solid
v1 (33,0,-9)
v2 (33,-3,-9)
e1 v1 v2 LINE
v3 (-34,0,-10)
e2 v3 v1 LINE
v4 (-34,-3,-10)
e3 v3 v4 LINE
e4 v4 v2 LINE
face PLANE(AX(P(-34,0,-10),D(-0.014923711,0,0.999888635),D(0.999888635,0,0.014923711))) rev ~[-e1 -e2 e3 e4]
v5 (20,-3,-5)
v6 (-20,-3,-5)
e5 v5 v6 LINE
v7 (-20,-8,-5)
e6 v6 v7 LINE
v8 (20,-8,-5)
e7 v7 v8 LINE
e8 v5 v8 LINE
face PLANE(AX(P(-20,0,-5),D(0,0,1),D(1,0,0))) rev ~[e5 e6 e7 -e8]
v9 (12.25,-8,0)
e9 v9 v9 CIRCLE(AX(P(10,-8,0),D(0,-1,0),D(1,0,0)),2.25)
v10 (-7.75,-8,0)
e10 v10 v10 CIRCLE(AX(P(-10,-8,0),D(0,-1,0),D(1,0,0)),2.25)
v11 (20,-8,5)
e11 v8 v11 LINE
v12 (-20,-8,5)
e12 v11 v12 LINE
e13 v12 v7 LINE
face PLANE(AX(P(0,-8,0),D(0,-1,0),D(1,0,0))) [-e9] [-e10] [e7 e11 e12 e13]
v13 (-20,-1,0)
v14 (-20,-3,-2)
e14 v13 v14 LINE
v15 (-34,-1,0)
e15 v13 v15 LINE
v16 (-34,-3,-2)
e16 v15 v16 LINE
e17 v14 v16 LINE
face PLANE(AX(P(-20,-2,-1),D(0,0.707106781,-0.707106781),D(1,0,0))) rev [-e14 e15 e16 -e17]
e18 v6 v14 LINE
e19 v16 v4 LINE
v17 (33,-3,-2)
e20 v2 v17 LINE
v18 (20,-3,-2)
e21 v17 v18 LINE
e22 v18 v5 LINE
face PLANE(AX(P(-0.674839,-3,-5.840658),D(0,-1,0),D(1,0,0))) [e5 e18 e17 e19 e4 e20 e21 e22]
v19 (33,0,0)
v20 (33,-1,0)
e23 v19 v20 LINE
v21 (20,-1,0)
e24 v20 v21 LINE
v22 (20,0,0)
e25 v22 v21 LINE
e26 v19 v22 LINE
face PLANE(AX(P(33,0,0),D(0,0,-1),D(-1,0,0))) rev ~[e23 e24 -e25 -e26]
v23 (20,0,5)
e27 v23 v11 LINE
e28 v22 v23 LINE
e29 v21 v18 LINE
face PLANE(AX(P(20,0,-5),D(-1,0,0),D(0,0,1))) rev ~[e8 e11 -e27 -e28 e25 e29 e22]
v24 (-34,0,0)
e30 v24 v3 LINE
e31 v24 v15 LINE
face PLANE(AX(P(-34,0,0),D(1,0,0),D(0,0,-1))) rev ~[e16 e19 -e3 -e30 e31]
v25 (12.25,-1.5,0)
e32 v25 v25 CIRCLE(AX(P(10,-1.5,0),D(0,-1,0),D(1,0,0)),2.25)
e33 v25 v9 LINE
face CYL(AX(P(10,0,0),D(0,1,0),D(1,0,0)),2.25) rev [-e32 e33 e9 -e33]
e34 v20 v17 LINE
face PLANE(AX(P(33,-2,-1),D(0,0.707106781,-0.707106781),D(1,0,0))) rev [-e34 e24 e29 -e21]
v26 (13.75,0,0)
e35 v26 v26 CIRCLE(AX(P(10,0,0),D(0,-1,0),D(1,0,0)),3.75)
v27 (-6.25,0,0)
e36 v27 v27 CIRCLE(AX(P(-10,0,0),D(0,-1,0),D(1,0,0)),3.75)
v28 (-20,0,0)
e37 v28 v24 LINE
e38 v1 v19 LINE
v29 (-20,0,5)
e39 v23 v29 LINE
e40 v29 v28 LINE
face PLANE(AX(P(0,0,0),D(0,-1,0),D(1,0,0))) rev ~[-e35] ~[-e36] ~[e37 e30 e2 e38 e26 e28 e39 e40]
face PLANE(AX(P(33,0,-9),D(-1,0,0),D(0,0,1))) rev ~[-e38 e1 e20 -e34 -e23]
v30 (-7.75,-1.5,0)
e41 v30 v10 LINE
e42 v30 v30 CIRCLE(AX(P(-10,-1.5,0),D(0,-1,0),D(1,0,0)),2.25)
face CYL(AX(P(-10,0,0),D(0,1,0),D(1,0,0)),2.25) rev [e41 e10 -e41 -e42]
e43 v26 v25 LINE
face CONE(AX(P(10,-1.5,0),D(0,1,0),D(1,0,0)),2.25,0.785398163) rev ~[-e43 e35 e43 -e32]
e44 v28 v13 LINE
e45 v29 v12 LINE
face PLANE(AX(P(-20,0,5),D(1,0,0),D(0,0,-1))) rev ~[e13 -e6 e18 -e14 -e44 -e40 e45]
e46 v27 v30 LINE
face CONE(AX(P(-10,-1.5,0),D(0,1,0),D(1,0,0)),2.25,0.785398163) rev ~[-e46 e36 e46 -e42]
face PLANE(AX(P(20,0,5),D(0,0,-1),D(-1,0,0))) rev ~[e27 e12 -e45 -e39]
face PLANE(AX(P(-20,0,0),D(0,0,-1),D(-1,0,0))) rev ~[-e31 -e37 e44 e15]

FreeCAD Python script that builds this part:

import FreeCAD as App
import Part
import Sketcher
from FreeCAD import Vector
Q = App.Units.Quantity


def edges_at(feature, points):
    """Names of the edges that pass closest to the given points."""
    edges = feature.Shape.Edges
    near = lambda p: min(range(len(edges)), key=lambda i: edges[i].distToShape(Part.Vertex(*p))[0])
    return sorted({f"Edge{near(p) + 1}" for p in points})


def add_polygon(sketch, points):
    """Adds a closed chain of lines whose ends are joined by coincident constraints."""
    first, n = sketch.GeometryCount, len(points)
    for a, b in zip(points, points[1:] + points[:1]):
        sketch.addGeometry(Part.LineSegment(App.Vector(*a, 0), App.Vector(*b, 0)), False)
    for i in range(n):
        sketch.addConstraint(Sketcher.Constraint("Coincident", first + i, 2, first + (i + 1) % n, 1))

doc = App.newDocument("Part")
body = doc.addObject("PartDesign::Body", "Body")

sketch1 = doc.addObject("Sketcher::SketchObject", "Sketch")
body.addObject(sketch1)
sketch1.AttachmentSupport = (doc.XZ_Plane, [""])
sketch1.MapMode = "FlatFace"
add_polygon(sketch1, [(-20, -5), (-20, 0), (-34, 0), (-34, -10), (33, -9), (33, 0), (20, 0), (20, -5)])
sketch1.addConstraint([
    Sketcher.Constraint("Vertical", 0),
    Sketcher.Constraint("Horizontal", 1),
    Sketcher.Constraint("Vertical", 2),
    Sketcher.Constraint("Vertical", 4),
    Sketcher.Constraint("Horizontal", 5),
    Sketcher.Constraint("Vertical", 6),
    Sketcher.Constraint("Horizontal", 7),
    Sketcher.Constraint("Symmetric", 0, 2, 5, 2, -1, 1),
    Sketcher.Constraint("PointOnObject", 0, 2, -1),
    Sketcher.Constraint("DistanceX", 1, 2, 1, 1, Q("14 mm")),
    Sketcher.Constraint("DistanceX", 5, 2, 5, 1, Q("13 mm")),
    Sketcher.Constraint("DistanceX", 7, 2, 7, 1, Q("40 mm")),
    Sketcher.Constraint("DistanceY", 0, 1, 0, 2, Q("5 mm")),
    Sketcher.Constraint("DistanceY", 2, 2, 2, 1, Q("10 mm")),
    Sketcher.Constraint("DistanceY", 4, 1, 4, 2, Q("9 mm")),
])
pad1 = doc.addObject("PartDesign::Pad", "Pad")
body.addObject(pad1)
pad1.Profile = sketch1
pad1.Length = 3

sketch2 = doc.addObject("Sketcher::SketchObject", "Sketch001")
body.addObject(sketch2)
sketch2.AttachmentSupport = (doc.XZ_Plane, [""])
sketch2.MapMode = "FlatFace"
add_polygon(sketch2, [(20, 5), (-20, 5), (-20, -5), (20, -5)])
sketch2.addGeometry(Part.Circle(Vector(-10, 0, 0), Vector(0, 0, 1), 2.2), False)
sketch2.addGeometry(Part.Circle(Vector(10, 0, 0), Vector(0, 0, 1), 2.2), False)
sketch2.addConstraint([
    Sketcher.Constraint("Horizontal", 0),
    Sketcher.Constraint("Vertical", 1),
    Sketcher.Constraint("Horizontal", 2),
    Sketcher.Constraint("Vertical", 3),
    Sketcher.Constraint("Equal", 4, 5),
    Sketcher.Constraint("Symmetric", 4, 3, 5, 3, -1, 1),
    Sketcher.Constraint("Symmetric", 0, 2, 2, 2, -1, 1),
    Sketcher.Constraint("PointOnObject", 4, 3, -1),
    Sketcher.Constraint("Diameter", 4, Q("4.5 mm")),
    Sketcher.Constraint("DistanceX", 0, 2, 0, 1, Q("40 mm")),
    Sketcher.Constraint("DistanceY", 1, 2, 1, 1, Q("10 mm")),
    Sketcher.Constraint("DistanceX", 4, 3, -1, 1, Q("10 mm")),
])
pad2 = doc.addObject("PartDesign::Pad", "Pad001")
body.addObject(pad2)
pad2.Profile = sketch2
pad2.Length = 8
doc.recompute()

chamfer = doc.addObject("PartDesign::Chamfer", "Chamfer")
body.addObject(chamfer)
chamfer.Base = (pad2, edges_at(pad2, [(7.75, 0, 0), (-12.25, 0, 0)]))
chamfer.Size = 1.5
doc.recompute()

chamfer2 = doc.addObject("PartDesign::Chamfer", "Chamfer001")
body.addObject(chamfer2)
chamfer2.Base = (chamfer, edges_at(chamfer, [(-27, -3, 0), (26.5, -3, 0)]))
chamfer2.Size = 2

doc.recompute()
